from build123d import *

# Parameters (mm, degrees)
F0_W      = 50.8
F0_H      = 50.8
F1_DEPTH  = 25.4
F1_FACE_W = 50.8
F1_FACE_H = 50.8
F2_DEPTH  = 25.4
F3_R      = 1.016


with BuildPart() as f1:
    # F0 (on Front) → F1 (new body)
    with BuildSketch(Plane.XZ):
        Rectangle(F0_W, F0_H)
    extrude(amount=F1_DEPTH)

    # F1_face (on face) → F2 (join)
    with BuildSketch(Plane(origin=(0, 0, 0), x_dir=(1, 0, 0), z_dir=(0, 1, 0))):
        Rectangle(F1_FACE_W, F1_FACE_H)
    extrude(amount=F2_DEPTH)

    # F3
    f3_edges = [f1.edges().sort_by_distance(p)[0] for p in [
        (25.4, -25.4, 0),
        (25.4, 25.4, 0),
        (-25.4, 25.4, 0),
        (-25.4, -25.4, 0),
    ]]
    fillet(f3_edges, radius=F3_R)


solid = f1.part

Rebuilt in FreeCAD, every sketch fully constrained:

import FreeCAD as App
import Part
import Sketcher
Q = App.Units.Quantity


def edges_at(feature, points):
    """Names of the edges that pass closest to the given points."""
    edges = feature.Shape.Edges
    near = lambda p: min(range(len(edges)), key=lambda i: edges[i].distToShape(Part.Vertex(*p))[0])
    return sorted({f"Edge{near(p) + 1}" for p in points})

doc = App.newDocument("Part")
body = doc.addObject("PartDesign::Body", "Body")

# Sketch on XZ plane
sketch1 = body.newObject("Sketcher::SketchObject", "Sketch")
sketch1.AttachmentSupport = (doc.getObject("XZ_Plane"), [""])
sketch1.MapMode = "FlatFace"
sketch1.addGeometry(Part.LineSegment(App.Vector(-25, 25, 0), App.Vector(-25, -25, 0)), False)
sketch1.addGeometry(Part.LineSegment(App.Vector(-25, -25, 0), App.Vector(25, -25, 0)), False)
sketch1.addGeometry(Part.LineSegment(App.Vector(25, -25, 0), App.Vector(25, 25, 0)), False)
sketch1.addGeometry(Part.LineSegment(App.Vector(25, 25, 0), App.Vector(-25, 25, 0)), False)
sketch1.addConstraint(Sketcher.Constraint("Coincident", 0, 2, 1, 1))
sketch1.addConstraint(Sketcher.Constraint("Coincident", 1, 2, 2, 1))
sketch1.addConstraint(Sketcher.Constraint("Coincident", 2, 2, 3, 1))
sketch1.addConstraint(Sketcher.Constraint("Coincident", 3, 2, 0, 1))
sketch1.addConstraint(Sketcher.Constraint("Vertical", 0))
sketch1.addConstraint(Sketcher.Constraint("Horizontal", 1))
sketch1.addConstraint(Sketcher.Constraint("Vertical", 2))
sketch1.addConstraint(Sketcher.Constraint("Horizontal", 3))
sketch1.addConstraint(Sketcher.Constraint("Symmetric", 0, 2, 2, 2, -1, 1))
sketch1.addConstraint(Sketcher.Constraint("Equal", 3, 0))
sketch1.addConstraint(Sketcher.Constraint("DistanceX", 1, 1, 1, 2, Q("2 in")))
pad1 = body.newObject("PartDesign::Pad", "Pad")
pad1.Profile = sketch1
pad1.Length = Q("1 in")

# Sketch on XZ plane
sketch2 = body.newObject("Sketcher::SketchObject", "Sketch001")
sketch2.AttachmentSupport = (doc.getObject("XZ_Plane"), [""])
sketch2.MapMode = "FlatFace"
sketch2.addGeometry(Part.LineSegment(App.Vector(-25, -25, 0), App.Vector(-25, 25, 0)), False)
sketch2.addGeometry(Part.LineSegment(App.Vector(-25, 25, 0), App.Vector(25, 25, 0)), False)
sketch2.addGeometry(Part.LineSegment(App.Vector(25, 25, 0), App.Vector(25, -25, 0)), False)
sketch2.addGeometry(Part.LineSegment(App.Vector(25, -25, 0), App.Vector(-25, -25, 0)), False)
sketch2.addConstraint(Sketcher.Constraint("Coincident", 0, 2, 1, 1))
sketch2.addConstraint(Sketcher.Constraint("Coincident", 1, 2, 2, 1))
sketch2.addConstraint(Sketcher.Constraint("Coincident", 2, 2, 3, 1))
sketch2.addConstraint(Sketcher.Constraint("Coincident", 3, 2, 0, 1))
sketch2.addConstraint(Sketcher.Constraint("Vertical", 0))
sketch2.addConstraint(Sketcher.Constraint("Horizontal", 1))
sketch2.addConstraint(Sketcher.Constraint("Vertical", 2))
sketch2.addConstraint(Sketcher.Constraint("Horizontal", 3))
sketch2.addConstraint(Sketcher.Constraint("Symmetric", 0, 2, 2, 2, -1, 1))
sketch2.addConstraint(Sketcher.Constraint("Equal", 3, 0))
sketch2.addConstraint(Sketcher.Constraint("DistanceX", 1, 1, 1, 2, Q("2 in")))
pad2 = body.newObject("PartDesign::Pad", "Pad001")
pad2.Profile = sketch2
pad2.Length = Q("1 in")
pad2.Reversed = True
doc.recompute()

fillet = body.newObject("PartDesign::Fillet", "Fillet")
fillet.Base = (pad2, edges_at(pad2, [
    (25.4, -25.4, 0),
    (25.4, 25.4, 0),
    (-25.4, 25.4, 0),
    (-25.4, -25.4, 0),
]))
fillet.Radius = Q("0.04 in")

doc.recompute()
